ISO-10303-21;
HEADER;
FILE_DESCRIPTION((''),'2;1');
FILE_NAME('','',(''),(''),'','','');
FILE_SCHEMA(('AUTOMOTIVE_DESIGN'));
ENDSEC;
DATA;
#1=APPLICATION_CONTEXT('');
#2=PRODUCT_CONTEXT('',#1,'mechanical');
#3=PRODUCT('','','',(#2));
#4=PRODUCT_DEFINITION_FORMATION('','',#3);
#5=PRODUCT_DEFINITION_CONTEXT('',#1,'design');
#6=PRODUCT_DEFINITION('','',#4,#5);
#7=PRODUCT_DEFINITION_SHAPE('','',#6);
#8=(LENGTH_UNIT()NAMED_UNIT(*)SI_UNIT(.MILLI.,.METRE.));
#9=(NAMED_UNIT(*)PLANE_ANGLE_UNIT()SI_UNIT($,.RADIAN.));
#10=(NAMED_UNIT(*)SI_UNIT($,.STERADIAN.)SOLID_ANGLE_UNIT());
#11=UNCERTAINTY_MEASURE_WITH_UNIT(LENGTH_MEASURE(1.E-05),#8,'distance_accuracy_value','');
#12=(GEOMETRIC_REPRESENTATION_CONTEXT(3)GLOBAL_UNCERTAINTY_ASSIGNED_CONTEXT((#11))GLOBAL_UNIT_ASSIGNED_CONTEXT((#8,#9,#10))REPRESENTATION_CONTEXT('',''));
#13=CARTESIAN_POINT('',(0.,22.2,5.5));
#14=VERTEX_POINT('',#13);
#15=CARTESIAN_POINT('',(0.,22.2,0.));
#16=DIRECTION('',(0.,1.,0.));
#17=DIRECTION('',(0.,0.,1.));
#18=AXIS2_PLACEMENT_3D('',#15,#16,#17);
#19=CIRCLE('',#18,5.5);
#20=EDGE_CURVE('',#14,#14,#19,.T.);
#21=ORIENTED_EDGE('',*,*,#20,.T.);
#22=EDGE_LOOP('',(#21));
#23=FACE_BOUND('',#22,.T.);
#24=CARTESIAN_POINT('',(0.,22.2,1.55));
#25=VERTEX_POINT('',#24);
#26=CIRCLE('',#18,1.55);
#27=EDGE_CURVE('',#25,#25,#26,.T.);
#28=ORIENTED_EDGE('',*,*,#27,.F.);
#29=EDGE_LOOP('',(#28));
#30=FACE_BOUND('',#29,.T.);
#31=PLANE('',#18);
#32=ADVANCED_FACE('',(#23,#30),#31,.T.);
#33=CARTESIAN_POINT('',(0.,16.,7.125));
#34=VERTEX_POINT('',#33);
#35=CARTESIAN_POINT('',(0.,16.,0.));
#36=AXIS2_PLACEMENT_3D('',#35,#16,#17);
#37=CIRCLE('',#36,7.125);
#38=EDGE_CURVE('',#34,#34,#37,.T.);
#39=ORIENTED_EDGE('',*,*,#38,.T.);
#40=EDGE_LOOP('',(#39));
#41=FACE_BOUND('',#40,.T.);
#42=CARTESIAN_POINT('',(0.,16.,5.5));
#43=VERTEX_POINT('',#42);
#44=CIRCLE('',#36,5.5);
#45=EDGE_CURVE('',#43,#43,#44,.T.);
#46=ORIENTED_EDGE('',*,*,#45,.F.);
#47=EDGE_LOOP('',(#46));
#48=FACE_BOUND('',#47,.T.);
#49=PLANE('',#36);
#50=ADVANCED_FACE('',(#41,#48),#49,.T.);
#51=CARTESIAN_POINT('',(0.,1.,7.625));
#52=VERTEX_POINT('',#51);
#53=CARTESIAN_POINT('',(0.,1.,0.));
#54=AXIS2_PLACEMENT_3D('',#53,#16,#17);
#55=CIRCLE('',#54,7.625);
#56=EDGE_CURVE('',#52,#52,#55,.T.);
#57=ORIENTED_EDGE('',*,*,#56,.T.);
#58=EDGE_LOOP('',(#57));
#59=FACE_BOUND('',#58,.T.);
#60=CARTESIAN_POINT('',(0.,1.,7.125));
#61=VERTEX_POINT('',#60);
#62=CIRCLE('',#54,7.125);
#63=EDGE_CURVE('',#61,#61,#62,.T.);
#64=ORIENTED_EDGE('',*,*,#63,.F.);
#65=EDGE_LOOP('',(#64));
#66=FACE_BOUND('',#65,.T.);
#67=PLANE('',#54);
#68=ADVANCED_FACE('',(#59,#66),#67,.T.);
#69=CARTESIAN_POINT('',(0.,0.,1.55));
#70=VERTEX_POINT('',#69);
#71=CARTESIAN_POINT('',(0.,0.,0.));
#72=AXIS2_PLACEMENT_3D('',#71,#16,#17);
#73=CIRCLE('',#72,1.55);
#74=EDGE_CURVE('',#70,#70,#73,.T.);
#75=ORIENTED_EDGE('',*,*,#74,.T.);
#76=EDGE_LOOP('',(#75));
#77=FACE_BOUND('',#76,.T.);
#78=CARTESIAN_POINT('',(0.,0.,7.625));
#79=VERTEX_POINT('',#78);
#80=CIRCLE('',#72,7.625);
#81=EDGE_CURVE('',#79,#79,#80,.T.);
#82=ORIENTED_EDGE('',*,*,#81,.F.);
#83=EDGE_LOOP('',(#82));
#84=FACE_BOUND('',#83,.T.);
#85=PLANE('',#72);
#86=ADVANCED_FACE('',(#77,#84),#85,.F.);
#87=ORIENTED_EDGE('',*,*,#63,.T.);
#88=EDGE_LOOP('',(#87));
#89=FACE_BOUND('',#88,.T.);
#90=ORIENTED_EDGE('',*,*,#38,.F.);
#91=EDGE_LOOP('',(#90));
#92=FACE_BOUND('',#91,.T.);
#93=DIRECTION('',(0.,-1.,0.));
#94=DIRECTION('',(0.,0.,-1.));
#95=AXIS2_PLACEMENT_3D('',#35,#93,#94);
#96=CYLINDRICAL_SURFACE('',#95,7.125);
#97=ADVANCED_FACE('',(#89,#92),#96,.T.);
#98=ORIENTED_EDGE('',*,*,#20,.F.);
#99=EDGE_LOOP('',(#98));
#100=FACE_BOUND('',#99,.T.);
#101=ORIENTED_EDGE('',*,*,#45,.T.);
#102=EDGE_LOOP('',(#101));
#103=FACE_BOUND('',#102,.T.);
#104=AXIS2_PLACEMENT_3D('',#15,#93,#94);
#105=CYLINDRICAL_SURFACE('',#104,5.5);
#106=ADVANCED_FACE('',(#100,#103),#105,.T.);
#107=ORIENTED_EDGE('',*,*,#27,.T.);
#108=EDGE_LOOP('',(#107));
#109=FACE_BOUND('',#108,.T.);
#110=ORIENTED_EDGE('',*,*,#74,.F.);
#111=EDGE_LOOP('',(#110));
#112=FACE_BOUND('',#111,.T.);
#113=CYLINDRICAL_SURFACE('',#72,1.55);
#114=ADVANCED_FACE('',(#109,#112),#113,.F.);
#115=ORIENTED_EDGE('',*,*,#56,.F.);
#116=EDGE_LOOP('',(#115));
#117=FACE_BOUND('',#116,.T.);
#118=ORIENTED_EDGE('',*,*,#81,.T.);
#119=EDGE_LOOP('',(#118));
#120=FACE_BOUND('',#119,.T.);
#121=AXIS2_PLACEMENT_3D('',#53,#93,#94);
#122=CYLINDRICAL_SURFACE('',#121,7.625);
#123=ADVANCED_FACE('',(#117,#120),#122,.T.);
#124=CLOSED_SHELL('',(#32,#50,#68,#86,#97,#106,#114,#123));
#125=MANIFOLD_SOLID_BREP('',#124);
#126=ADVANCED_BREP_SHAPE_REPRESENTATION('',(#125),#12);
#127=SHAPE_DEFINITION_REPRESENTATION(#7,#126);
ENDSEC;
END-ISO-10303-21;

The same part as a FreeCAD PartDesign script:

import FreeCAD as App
import Part
import Sketcher

V = App.Vector

doc = App.newDocument("Part")
params = doc.addObject("Spreadsheet::Sheet", "Params")
for row, (alias, value) in enumerate([
    ("sketch1_diameter", "15.25 mm"),
    ("pad1_length", "1 mm"),
    ("sketch2_diameter", "14.25 mm"),
    ("pad2_length", "15 mm"),
    ("sketch3_diameter", "11 mm"),
    ("pad3_length", "6.2 mm"),
    ("sketch4_diameter", "3.1 mm"),
], start=1):
    params.set(f"A{row}", alias)
    params.set(f"B{row}", "=" + value)
    params.setAlias(f"B{row}", alias)

body = doc.addObject("PartDesign::Body", "Body")

# Sketch on XZ plane
sketch1 = body.newObject("Sketcher::SketchObject", "Sketch")
sketch1.AttachmentSupport = (doc.getObject("XZ_Plane"), [""])
sketch1.MapMode = "FlatFace"
sketch1.addGeometry(Part.Circle(V(0, 0, 0), V(0, 0, 1), 8), False)
sketch1.addConstraint([
    Sketcher.Constraint("Coincident", 0, 3, -1, 1),
    Sketcher.Constraint("Diameter", 0, 15.25),
])
sketch1.setExpression("Constraints[1]", "Params.sketch1_diameter")
pad1 = body.newObject("PartDesign::Pad", "Pad")
pad1.Profile = sketch1
pad1.setExpression("Length", "Params.pad1_length")
pad1.Reversed = True

# Sketch on XZ plane
sketch2 = body.newObject("Sketcher::SketchObject", "Sketch001")
sketch2.AttachmentSupport = (doc.getObject("XZ_Plane"), [""])
sketch2.MapMode = "FlatFace"
sketch2.AttachmentOffset = App.Placement(V(0, 0, -1), App.Rotation())
sketch2.addGeometry(Part.Circle(V(0, 0, 0), V(0, 0, 1), 7), False)
sketch2.addConstraint([
    Sketcher.Constraint("Coincident", 0, 3, -1, 1),
    Sketcher.Constraint("Diameter", 0, 14.25),
])
sketch2.setExpression("Constraints[1]", "Params.sketch2_diameter")
pad2 = body.newObject("PartDesign::Pad", "Pad001")
pad2.Profile = sketch2
pad2.setExpression("Length", "Params.pad2_length")
pad2.Reversed = True

# Sketch on XZ plane
sketch3 = body.newObject("Sketcher::SketchObject", "Sketch002")
sketch3.AttachmentSupport = (doc.getObject("XZ_Plane"), [""])
sketch3.MapMode = "FlatFace"
sketch3.AttachmentOffset = App.Placement(V(0, 0, -16), App.Rotation())
sketch3.addGeometry(Part.Circle(V(0, 0, 0), V(0, 0, 1), 6), False)
sketch3.addConstraint([
    Sketcher.Constraint("Coincident", 0, 3, -1, 1),
    Sketcher.Constraint("Diameter", 0, 11.0),
])
sketch3.setExpression("Constraints[1]", "Params.sketch3_diameter")
pad3 = body.newObject("PartDesign::Pad", "Pad002")
pad3.Profile = sketch3
pad3.setExpression("Length", "Params.pad3_length")
pad3.Reversed = True

# Sketch on XZ plane
sketch4 = body.newObject("Sketcher::SketchObject", "Sketch003")
sketch4.AttachmentSupport = (doc.getObject("XZ_Plane"), [""])
sketch4.MapMode = "FlatFace"
sketch4.AttachmentOffset = App.Placement(V(0, 0, -22.2), App.Rotation())
sketch4.addGeometry(Part.Circle(V(0, 0, 0), V(0, 0, 1), 1.6), False)
sketch4.addConstraint([
    Sketcher.Constraint("Coincident", 0, 3, -1, 1),
    Sketcher.Constraint("Diameter", 0, 3.1),
])
sketch4.setExpression("Constraints[1]", "Params.sketch4_diameter")
pocket1 = body.newObject("PartDesign::Pocket", "Pocket")
pocket1.Profile = sketch4
pocket1.Type = "ThroughAll"
pocket1.Reversed = True

doc.recompute()
